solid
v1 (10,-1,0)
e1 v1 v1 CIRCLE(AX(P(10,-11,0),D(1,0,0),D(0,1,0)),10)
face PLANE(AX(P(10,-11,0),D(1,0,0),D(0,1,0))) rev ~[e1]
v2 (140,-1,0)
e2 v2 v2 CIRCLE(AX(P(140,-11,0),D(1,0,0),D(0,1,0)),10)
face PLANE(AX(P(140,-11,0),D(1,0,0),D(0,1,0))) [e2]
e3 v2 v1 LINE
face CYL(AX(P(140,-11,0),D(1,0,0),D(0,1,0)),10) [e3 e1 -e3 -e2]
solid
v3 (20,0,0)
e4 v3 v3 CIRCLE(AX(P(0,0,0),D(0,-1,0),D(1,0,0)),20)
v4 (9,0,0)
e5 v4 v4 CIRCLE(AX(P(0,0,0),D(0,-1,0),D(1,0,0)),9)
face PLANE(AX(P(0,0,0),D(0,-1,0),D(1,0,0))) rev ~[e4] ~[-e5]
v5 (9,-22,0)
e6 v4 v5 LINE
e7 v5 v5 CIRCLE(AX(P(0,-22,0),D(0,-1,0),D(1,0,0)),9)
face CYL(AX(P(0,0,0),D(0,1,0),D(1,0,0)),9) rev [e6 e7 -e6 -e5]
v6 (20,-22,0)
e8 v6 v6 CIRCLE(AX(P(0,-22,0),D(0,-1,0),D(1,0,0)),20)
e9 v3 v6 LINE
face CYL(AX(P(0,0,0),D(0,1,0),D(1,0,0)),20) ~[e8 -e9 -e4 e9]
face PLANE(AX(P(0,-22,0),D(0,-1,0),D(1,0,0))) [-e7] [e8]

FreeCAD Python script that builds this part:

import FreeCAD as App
import Part
import Sketcher

V = App.Vector
Q = App.Units.Quantity

doc = App.newDocument("Part")
body = doc.addObject("PartDesign::Body", "Body")

# Sketch on XZ plane
sketch1 = body.newObject("Sketcher::SketchObject", "Sketch")
sketch1.AttachmentSupport = (doc.getObject("XZ_Plane"), [""])
sketch1.MapMode = "FlatFace"
sketch1.addGeometry([
    Part.Circle(V(0, 0, 0), V(0, 0, 1), 20),
    Part.Circle(V(0, 0, 0), V(0, 0, 1), 9),
], False)
sketch1.addConstraint([
    Sketcher.Constraint("Coincident", 0, 3, -1, 1),
    Sketcher.Constraint("Coincident", 1, 3, -1, 1),
    Sketcher.Constraint("Diameter", 0, Q("40 mm")),
    Sketcher.Constraint("Diameter", 1, Q("18 mm")),
])
pad1 = body.newObject("PartDesign::Pad", "Pad")
pad1.Profile = sketch1
pad1.Length = 22
body2 = doc.addObject("PartDesign::Body", "Body001")

# Sketch on YZ plane
sketch2 = body2.newObject("Sketcher::SketchObject", "Sketch001")
sketch2.AttachmentSupport = (doc.getObject("YZ_Plane001"), [""])
sketch2.MapMode = "FlatFace"
sketch2.AttachmentOffset = App.Placement(V(0, 0, 140), App.Rotation())
sketch2.addGeometry(Part.Circle(V(-11, 0, 0), V(0, 0, 1), 10), False)
sketch2.addConstraint([
    Sketcher.Constraint("PointOnObject", 0, 3, -1),
    Sketcher.Constraint("Diameter", 0, Q("20 mm")),
    Sketcher.Constraint("DistanceX", 0, 3, -1, 1, Q("11 mm")),
])
pad2 = body2.newObject("PartDesign::Pad", "Pad001")
pad2.Profile = sketch2
pad2.Length = 130
pad2.Reversed = True

doc.recompute()
